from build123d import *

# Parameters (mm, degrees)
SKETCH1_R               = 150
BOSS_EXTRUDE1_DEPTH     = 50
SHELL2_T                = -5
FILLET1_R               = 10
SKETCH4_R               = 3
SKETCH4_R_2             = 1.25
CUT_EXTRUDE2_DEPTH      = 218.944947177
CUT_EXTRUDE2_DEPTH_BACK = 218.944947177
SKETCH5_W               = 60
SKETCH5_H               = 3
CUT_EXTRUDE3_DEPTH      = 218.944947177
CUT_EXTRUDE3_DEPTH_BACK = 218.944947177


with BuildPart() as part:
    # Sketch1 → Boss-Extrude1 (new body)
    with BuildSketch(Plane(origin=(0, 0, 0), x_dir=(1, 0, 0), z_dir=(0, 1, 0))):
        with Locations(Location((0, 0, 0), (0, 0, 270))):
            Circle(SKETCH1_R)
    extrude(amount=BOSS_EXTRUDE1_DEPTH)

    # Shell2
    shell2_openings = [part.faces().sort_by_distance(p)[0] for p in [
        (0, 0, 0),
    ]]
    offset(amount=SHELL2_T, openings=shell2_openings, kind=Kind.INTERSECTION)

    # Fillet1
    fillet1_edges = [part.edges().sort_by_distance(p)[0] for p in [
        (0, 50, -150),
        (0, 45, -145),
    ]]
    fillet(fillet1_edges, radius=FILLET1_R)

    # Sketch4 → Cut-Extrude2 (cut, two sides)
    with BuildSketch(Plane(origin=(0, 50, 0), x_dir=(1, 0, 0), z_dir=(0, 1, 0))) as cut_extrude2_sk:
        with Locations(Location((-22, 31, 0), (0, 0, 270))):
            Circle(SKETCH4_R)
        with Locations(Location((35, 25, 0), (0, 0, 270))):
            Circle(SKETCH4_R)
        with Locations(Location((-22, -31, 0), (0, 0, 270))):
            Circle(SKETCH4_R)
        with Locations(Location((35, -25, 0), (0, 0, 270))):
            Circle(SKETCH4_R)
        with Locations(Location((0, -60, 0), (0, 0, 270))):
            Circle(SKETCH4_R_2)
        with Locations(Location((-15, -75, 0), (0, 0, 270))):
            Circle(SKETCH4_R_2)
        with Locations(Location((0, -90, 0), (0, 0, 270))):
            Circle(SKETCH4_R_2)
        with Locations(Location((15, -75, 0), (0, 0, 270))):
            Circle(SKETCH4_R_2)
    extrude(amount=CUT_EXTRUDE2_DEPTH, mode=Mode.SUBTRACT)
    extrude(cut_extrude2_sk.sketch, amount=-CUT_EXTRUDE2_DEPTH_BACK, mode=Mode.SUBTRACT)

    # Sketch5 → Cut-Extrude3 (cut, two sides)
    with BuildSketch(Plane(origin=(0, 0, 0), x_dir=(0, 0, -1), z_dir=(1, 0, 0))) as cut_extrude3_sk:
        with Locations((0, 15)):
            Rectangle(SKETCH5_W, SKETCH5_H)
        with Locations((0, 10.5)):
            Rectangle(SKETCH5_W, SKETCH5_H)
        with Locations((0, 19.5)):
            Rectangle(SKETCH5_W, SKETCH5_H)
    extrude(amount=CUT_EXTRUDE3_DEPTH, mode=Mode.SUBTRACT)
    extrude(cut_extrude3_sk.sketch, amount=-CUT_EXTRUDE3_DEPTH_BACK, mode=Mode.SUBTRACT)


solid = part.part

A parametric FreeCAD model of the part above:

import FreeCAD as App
import Part
import Sketcher

V = App.Vector
Q = App.Units.Quantity


def edges_at(feature, points):
    """Names of the edges that pass closest to the given points."""
    edges = feature.Shape.Edges
    near = lambda p: min(range(len(edges)), key=lambda i: edges[i].distToShape(Part.Vertex(*p))[0])
    return sorted({f"Edge{near(p) + 1}" for p in points})


def faces_at(feature, points):
    """Names of the faces that lie closest to the given points."""
    faces = feature.Shape.Faces
    near = lambda p: min(range(len(faces)), key=lambda i: faces[i].distToShape(Part.Vertex(*p))[0])
    return sorted({f"Face{near(p) + 1}" for p in points})

doc = App.newDocument("Part")
body = doc.addObject("PartDesign::Body", "Body")

# Sketch on XZ plane
sketch1 = doc.addObject("Sketcher::SketchObject", "Sketch")
body.addObject(sketch1)
sketch1.AttachmentSupport = (doc.XZ_Plane, [""])
sketch1.MapMode = "FlatFace"
sketch1.addGeometry(Part.Circle(V(0, 0, 0), V(0, 0, 1), 150), False)
sketch1.addConstraint([
    Sketcher.Constraint("Coincident", 0, 3, -1, 1),
    Sketcher.Constraint("Diameter", 0, Q("300 mm")),
])
pad1 = doc.addObject("PartDesign::Pad", "Pad")
body.addObject(pad1)
pad1.Profile = sketch1
pad1.Length = 50
pad1.Reversed = True
doc.recompute()

thickness = doc.addObject("PartDesign::Thickness", "Thickness")
body.addObject(thickness)
thickness.Base = (pad1, faces_at(pad1, [(0, 0, 0)]))
thickness.Value = 5
thickness.Reversed = True
thickness.Join = "Intersection"
doc.recompute()

fillet = doc.addObject("PartDesign::Fillet", "Fillet")
body.addObject(fillet)
fillet.Base = (thickness, edges_at(thickness, [(0, 50, -150), (0, 45, -145)]))
fillet.Radius = 10

# Sketch on XZ plane
sketch2 = doc.addObject("Sketcher::SketchObject", "Sketch001")
body.addObject(sketch2)
sketch2.AttachmentSupport = (doc.XZ_Plane, [""])
sketch2.MapMode = "FlatFace"
sketch2.AttachmentOffset = App.Placement(V(0, 0, -50), App.Rotation())
sketch2.addGeometry([
    Part.Circle(V(-22, -31, 0), V(0, 0, 1), 3),  # 0
    Part.Circle(V(35, -25, 0), V(0, 0, 1), 3),  # 1
    Part.Circle(V(-22, 31, 0), V(0, 0, 1), 3),  # 2
    Part.Circle(V(35, 25, 0), V(0, 0, 1), 3),  # 3
    Part.Circle(V(0, 60, 0), V(0, 0, 1), 1.2),  # 4
    Part.Circle(V(-15, 75, 0), V(0, 0, 1), 1.2),  # 5
    Part.Circle(V(0, 90, 0), V(0, 0, 1), 1.2),  # 6
    Part.Circle(V(15, 75, 0), V(0, 0, 1), 1.2),  # 7
], False)
sketch2.addConstraint([
    Sketcher.Constraint("Equal", 0, 1),
    Sketcher.Constraint("Equal", 1, 2),
    Sketcher.Constraint("Equal", 2, 3),
    Sketcher.Constraint("Equal", 4, 5),
    Sketcher.Constraint("Equal", 5, 6),
    Sketcher.Constraint("Equal", 6, 7),
    Sketcher.Constraint("Symmetric", 5, 3, 7, 3, -2),
    Sketcher.Constraint("Symmetric", 0, 3, 2, 3, -1),
    Sketcher.Constraint("Symmetric", 1, 3, 3, 3, -1),
    Sketcher.Constraint("PointOnObject", 4, 3, -2),
    Sketcher.Constraint("PointOnObject", 6, 3, -2),
    Sketcher.Constraint("Diameter", 0, Q("6 mm")),
    Sketcher.Constraint("Diameter", 4, Q("2.5 mm")),
    Sketcher.Constraint("DistanceX", 0, 3, -1, 1, Q("22 mm")),
    Sketcher.Constraint("DistanceY", 0, 3, -1, 1, Q("31 mm")),
    Sketcher.Constraint("DistanceX", -1, 1, 1, 3, Q("35 mm")),
    Sketcher.Constraint("DistanceY", 1, 3, -1, 1, Q("25 mm")),
    Sketcher.Constraint("DistanceY", -1, 1, 4, 3, Q("60 mm")),
    Sketcher.Constraint("DistanceX", 5, 3, -1, 1, Q("15 mm")),
    Sketcher.Constraint("DistanceY", -1, 1, 5, 3, Q("75 mm")),
    Sketcher.Constraint("DistanceY", -1, 1, 6, 3, Q("90 mm")),
])
pocket1 = doc.addObject("PartDesign::Pocket", "Pocket")
body.addObject(pocket1)
pocket1.Profile = sketch2
pocket1.Type = "ThroughAll"
pocket1.Midplane = True

# Sketch on YZ plane
sketch3 = doc.addObject("Sketcher::SketchObject", "Sketch002")
body.addObject(sketch3)
sketch3.AttachmentSupport = (doc.YZ_Plane, [""])
sketch3.MapMode = "FlatFace"
sketch3.addGeometry([
    Part.LineSegment(V(16.5, 30, 0), V(13.5, 30, 0)),  # 0
    Part.LineSegment(V(13.5, 30, 0), V(13.5, -30, 0)),  # 1
    Part.LineSegment(V(13.5, -30, 0), V(16.5, -30, 0)),  # 2
    Part.LineSegment(V(16.5, -30, 0), V(16.5, 30, 0)),  # 3
    Part.LineSegment(V(12, 30, 0), V(9, 30, 0)),  # 4
    Part.LineSegment(V(9, 30, 0), V(9, -30, 0)),  # 5
    Part.LineSegment(V(9, -30, 0), V(12, -30, 0)),  # 6
    Part.LineSegment(V(12, -30, 0), V(12, 30, 0)),  # 7
    Part.LineSegment(V(21, 30, 0), V(18, 30, 0)),  # 8
    Part.LineSegment(V(18, 30, 0), V(18, -30, 0)),  # 9
    Part.LineSegment(V(18, -30, 0), V(21, -30, 0)),  # 10
    Part.LineSegment(V(21, -30, 0), V(21, 30, 0)),  # 11
], False)
sketch3.addConstraint([
    Sketcher.Constraint("Coincident", 0, 2, 1, 1),
    Sketcher.Constraint("Coincident", 1, 2, 2, 1),
    Sketcher.Constraint("Coincident", 2, 2, 3, 1),
    Sketcher.Constraint("Coincident", 3, 2, 0, 1),
    Sketcher.Constraint("Coincident", 4, 2, 5, 1),
    Sketcher.Constraint("Coincident", 5, 2, 6, 1),
    Sketcher.Constraint("Coincident", 6, 2, 7, 1),
    Sketcher.Constraint("Coincident", 7, 2, 4, 1),
    Sketcher.Constraint("Coincident", 8, 2, 9, 1),
    Sketcher.Constraint("Coincident", 9, 2, 10, 1),
    Sketcher.Constraint("Coincident", 10, 2, 11, 1),
    Sketcher.Constraint("Coincident", 11, 2, 8, 1),
    Sketcher.Constraint("Horizontal", 0),
    Sketcher.Constraint("Vertical", 1),
    Sketcher.Constraint("Horizontal", 2),
    Sketcher.Constraint("Vertical", 3),
    Sketcher.Constraint("Horizontal", 4),
    Sketcher.Constraint("Vertical", 5),
    Sketcher.Constraint("Horizontal", 6),
    Sketcher.Constraint("Vertical", 7),
    Sketcher.Constraint("Horizontal", 8),
    Sketcher.Constraint("Vertical", 9),
    Sketcher.Constraint("Horizontal", 10),
    Sketcher.Constraint("Vertical", 11),
    Sketcher.Constraint("Horizontal", 3, 2, 4, 2),
    Sketcher.Constraint("Horizontal", 2, 2, 5, 2),
    Sketcher.Constraint("Horizontal", 7, 2, 8, 2),
    Sketcher.Constraint("Horizontal", 6, 2, 9, 2),
    Sketcher.Constraint("Equal", 2, 4),
    Sketcher.Constraint("Equal", 6, 8),
    Sketcher.Constraint("DistanceX", 0, 2, 0, 1, Q("3 mm")),
    Sketcher.Constraint("DistanceY", 1, 2, 1, 1, Q("60 mm")),
    Sketcher.Constraint("DistanceY", -1, 1, 0, 2, Q("30 mm")),
    Sketcher.Constraint("DistanceX", -1, 1, 4, 2, Q("9 mm")),
    Sketcher.Constraint("DistanceX", -1, 1, 8, 2, Q("18 mm")),
    Sketcher.Constraint("DistanceX", -1, 1, 0, 2, Q("13.5 mm")),
])
pocket2 = doc.addObject("PartDesign::Pocket", "Pocket001")
body.addObject(pocket2)
pocket2.Profile = sketch3
pocket2.Type = "ThroughAll"
pocket2.Midplane = True

doc.recompute()
